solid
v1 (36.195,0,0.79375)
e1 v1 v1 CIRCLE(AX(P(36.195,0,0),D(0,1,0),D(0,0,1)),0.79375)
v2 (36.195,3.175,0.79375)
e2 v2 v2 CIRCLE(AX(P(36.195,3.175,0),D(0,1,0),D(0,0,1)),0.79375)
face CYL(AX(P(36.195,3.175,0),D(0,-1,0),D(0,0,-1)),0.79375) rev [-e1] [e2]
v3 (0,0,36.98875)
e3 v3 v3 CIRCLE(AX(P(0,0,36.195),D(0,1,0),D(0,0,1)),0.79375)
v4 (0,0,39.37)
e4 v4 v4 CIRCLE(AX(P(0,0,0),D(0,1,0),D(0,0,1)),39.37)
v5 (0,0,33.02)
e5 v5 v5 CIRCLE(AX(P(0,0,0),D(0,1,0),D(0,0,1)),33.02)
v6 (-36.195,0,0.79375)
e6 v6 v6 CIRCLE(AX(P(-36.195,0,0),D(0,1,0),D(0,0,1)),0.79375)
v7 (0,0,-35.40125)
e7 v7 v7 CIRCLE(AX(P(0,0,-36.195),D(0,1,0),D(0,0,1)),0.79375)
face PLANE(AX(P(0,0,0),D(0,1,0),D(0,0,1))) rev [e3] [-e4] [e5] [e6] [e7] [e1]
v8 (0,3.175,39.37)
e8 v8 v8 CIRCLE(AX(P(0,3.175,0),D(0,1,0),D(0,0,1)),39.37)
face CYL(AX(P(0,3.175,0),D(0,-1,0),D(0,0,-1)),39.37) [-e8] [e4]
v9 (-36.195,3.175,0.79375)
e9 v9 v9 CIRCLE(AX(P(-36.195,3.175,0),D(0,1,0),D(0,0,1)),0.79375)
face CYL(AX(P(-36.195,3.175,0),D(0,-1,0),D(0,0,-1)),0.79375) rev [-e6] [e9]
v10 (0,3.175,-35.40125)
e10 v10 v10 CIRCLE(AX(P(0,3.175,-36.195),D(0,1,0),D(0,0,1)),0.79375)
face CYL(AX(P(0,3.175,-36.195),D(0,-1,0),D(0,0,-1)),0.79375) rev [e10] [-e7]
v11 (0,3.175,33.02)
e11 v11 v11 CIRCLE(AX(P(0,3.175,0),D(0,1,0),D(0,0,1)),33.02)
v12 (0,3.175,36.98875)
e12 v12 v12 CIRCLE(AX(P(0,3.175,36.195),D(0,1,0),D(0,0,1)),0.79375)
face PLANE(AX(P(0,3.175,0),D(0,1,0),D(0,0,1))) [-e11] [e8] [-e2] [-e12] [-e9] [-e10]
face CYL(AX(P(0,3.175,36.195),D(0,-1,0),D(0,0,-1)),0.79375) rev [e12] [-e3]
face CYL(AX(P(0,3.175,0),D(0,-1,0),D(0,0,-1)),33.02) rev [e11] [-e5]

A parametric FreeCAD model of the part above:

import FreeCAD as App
import Part
import Sketcher
from FreeCAD import Vector
Q = App.Units.Quantity

doc = App.newDocument("Part")
params = doc.addObject("Spreadsheet::Sheet", "Params")
for row, (alias, value) in enumerate([
    ("sketch1_diameter", "3.1 in"),
    ("sketch1_diameter2", "2.6 in"),
    ("sketch1_diameter3", "0.0625 in"),
    ("pad1_length", "0.125 in"),
], start=1):
    params.set(f"A{row}", alias)
    params.set(f"B{row}", "=" + value)
    params.setAlias(f"B{row}", alias)

body = doc.addObject("PartDesign::Body", "Body")

# Sketch on XZ plane
sketch1 = body.newObject("Sketcher::SketchObject", "Sketch")
sketch1.AttachmentSupport = (doc.getObject("XZ_Plane"), [""])
sketch1.MapMode = "FlatFace"
sketch1.addGeometry([
    Part.Circle(Vector(0, 0, 0), Vector(0, 0, 1), 39.4),  # 0
    Part.Circle(Vector(0, 36.2, 0), Vector(0, 0, 1), 0.8),  # 1
    Part.Circle(Vector(-36.2, 0, 0), Vector(0, 0, 1), 0.8),  # 2
    Part.Circle(Vector(0, 0, 0), Vector(0, 0, 1), 33),  # 3
    Part.Circle(Vector(36.2, 0, 0), Vector(0, 0, 1), 0.8),  # 4
    Part.Circle(Vector(0, -36.2, 0), Vector(0, 0, 1), 0.8),  # 5
], False)
sketch1.addConstraint([
    Sketcher.Constraint("Coincident", 0, 3, -1, 1),
    Sketcher.Constraint("Coincident", 3, 3, -1, 1),
    Sketcher.Constraint("Equal", 1, 2),
    Sketcher.Constraint("Equal", 2, 4),
    Sketcher.Constraint("Equal", 4, 5),
    Sketcher.Constraint("Symmetric", 2, 3, 4, 3, -1, 1),
    Sketcher.Constraint("Symmetric", 1, 3, 5, 3, -1, 1),
    Sketcher.Constraint("PointOnObject", 1, 3, -2),
    Sketcher.Constraint("PointOnObject", 2, 3, -1),
    Sketcher.Constraint("Diameter", 0, Q("3.1 in")),
    Sketcher.Constraint("Diameter", 3, Q("2.6 in")),
    Sketcher.Constraint("Diameter", 1, Q("0.0625 in")),
    Sketcher.Constraint("DistanceX", 2, 3, 4, 3, Q("2.85 in")),
    Sketcher.Constraint("DistanceY", 5, 3, 1, 3, Q("2.85 in")),
])
sketch1.setExpression("Constraints[9]", "Params.sketch1_diameter")
sketch1.setExpression("Constraints[10]", "Params.sketch1_diameter2")
sketch1.setExpression("Constraints[11]", "Params.sketch1_diameter3")
pad1 = body.newObject("PartDesign::Pad", "Pad")
pad1.Profile = sketch1
pad1.setExpression("Length", "Params.pad1_length")
pad1.Reversed = True

doc.recompute()
